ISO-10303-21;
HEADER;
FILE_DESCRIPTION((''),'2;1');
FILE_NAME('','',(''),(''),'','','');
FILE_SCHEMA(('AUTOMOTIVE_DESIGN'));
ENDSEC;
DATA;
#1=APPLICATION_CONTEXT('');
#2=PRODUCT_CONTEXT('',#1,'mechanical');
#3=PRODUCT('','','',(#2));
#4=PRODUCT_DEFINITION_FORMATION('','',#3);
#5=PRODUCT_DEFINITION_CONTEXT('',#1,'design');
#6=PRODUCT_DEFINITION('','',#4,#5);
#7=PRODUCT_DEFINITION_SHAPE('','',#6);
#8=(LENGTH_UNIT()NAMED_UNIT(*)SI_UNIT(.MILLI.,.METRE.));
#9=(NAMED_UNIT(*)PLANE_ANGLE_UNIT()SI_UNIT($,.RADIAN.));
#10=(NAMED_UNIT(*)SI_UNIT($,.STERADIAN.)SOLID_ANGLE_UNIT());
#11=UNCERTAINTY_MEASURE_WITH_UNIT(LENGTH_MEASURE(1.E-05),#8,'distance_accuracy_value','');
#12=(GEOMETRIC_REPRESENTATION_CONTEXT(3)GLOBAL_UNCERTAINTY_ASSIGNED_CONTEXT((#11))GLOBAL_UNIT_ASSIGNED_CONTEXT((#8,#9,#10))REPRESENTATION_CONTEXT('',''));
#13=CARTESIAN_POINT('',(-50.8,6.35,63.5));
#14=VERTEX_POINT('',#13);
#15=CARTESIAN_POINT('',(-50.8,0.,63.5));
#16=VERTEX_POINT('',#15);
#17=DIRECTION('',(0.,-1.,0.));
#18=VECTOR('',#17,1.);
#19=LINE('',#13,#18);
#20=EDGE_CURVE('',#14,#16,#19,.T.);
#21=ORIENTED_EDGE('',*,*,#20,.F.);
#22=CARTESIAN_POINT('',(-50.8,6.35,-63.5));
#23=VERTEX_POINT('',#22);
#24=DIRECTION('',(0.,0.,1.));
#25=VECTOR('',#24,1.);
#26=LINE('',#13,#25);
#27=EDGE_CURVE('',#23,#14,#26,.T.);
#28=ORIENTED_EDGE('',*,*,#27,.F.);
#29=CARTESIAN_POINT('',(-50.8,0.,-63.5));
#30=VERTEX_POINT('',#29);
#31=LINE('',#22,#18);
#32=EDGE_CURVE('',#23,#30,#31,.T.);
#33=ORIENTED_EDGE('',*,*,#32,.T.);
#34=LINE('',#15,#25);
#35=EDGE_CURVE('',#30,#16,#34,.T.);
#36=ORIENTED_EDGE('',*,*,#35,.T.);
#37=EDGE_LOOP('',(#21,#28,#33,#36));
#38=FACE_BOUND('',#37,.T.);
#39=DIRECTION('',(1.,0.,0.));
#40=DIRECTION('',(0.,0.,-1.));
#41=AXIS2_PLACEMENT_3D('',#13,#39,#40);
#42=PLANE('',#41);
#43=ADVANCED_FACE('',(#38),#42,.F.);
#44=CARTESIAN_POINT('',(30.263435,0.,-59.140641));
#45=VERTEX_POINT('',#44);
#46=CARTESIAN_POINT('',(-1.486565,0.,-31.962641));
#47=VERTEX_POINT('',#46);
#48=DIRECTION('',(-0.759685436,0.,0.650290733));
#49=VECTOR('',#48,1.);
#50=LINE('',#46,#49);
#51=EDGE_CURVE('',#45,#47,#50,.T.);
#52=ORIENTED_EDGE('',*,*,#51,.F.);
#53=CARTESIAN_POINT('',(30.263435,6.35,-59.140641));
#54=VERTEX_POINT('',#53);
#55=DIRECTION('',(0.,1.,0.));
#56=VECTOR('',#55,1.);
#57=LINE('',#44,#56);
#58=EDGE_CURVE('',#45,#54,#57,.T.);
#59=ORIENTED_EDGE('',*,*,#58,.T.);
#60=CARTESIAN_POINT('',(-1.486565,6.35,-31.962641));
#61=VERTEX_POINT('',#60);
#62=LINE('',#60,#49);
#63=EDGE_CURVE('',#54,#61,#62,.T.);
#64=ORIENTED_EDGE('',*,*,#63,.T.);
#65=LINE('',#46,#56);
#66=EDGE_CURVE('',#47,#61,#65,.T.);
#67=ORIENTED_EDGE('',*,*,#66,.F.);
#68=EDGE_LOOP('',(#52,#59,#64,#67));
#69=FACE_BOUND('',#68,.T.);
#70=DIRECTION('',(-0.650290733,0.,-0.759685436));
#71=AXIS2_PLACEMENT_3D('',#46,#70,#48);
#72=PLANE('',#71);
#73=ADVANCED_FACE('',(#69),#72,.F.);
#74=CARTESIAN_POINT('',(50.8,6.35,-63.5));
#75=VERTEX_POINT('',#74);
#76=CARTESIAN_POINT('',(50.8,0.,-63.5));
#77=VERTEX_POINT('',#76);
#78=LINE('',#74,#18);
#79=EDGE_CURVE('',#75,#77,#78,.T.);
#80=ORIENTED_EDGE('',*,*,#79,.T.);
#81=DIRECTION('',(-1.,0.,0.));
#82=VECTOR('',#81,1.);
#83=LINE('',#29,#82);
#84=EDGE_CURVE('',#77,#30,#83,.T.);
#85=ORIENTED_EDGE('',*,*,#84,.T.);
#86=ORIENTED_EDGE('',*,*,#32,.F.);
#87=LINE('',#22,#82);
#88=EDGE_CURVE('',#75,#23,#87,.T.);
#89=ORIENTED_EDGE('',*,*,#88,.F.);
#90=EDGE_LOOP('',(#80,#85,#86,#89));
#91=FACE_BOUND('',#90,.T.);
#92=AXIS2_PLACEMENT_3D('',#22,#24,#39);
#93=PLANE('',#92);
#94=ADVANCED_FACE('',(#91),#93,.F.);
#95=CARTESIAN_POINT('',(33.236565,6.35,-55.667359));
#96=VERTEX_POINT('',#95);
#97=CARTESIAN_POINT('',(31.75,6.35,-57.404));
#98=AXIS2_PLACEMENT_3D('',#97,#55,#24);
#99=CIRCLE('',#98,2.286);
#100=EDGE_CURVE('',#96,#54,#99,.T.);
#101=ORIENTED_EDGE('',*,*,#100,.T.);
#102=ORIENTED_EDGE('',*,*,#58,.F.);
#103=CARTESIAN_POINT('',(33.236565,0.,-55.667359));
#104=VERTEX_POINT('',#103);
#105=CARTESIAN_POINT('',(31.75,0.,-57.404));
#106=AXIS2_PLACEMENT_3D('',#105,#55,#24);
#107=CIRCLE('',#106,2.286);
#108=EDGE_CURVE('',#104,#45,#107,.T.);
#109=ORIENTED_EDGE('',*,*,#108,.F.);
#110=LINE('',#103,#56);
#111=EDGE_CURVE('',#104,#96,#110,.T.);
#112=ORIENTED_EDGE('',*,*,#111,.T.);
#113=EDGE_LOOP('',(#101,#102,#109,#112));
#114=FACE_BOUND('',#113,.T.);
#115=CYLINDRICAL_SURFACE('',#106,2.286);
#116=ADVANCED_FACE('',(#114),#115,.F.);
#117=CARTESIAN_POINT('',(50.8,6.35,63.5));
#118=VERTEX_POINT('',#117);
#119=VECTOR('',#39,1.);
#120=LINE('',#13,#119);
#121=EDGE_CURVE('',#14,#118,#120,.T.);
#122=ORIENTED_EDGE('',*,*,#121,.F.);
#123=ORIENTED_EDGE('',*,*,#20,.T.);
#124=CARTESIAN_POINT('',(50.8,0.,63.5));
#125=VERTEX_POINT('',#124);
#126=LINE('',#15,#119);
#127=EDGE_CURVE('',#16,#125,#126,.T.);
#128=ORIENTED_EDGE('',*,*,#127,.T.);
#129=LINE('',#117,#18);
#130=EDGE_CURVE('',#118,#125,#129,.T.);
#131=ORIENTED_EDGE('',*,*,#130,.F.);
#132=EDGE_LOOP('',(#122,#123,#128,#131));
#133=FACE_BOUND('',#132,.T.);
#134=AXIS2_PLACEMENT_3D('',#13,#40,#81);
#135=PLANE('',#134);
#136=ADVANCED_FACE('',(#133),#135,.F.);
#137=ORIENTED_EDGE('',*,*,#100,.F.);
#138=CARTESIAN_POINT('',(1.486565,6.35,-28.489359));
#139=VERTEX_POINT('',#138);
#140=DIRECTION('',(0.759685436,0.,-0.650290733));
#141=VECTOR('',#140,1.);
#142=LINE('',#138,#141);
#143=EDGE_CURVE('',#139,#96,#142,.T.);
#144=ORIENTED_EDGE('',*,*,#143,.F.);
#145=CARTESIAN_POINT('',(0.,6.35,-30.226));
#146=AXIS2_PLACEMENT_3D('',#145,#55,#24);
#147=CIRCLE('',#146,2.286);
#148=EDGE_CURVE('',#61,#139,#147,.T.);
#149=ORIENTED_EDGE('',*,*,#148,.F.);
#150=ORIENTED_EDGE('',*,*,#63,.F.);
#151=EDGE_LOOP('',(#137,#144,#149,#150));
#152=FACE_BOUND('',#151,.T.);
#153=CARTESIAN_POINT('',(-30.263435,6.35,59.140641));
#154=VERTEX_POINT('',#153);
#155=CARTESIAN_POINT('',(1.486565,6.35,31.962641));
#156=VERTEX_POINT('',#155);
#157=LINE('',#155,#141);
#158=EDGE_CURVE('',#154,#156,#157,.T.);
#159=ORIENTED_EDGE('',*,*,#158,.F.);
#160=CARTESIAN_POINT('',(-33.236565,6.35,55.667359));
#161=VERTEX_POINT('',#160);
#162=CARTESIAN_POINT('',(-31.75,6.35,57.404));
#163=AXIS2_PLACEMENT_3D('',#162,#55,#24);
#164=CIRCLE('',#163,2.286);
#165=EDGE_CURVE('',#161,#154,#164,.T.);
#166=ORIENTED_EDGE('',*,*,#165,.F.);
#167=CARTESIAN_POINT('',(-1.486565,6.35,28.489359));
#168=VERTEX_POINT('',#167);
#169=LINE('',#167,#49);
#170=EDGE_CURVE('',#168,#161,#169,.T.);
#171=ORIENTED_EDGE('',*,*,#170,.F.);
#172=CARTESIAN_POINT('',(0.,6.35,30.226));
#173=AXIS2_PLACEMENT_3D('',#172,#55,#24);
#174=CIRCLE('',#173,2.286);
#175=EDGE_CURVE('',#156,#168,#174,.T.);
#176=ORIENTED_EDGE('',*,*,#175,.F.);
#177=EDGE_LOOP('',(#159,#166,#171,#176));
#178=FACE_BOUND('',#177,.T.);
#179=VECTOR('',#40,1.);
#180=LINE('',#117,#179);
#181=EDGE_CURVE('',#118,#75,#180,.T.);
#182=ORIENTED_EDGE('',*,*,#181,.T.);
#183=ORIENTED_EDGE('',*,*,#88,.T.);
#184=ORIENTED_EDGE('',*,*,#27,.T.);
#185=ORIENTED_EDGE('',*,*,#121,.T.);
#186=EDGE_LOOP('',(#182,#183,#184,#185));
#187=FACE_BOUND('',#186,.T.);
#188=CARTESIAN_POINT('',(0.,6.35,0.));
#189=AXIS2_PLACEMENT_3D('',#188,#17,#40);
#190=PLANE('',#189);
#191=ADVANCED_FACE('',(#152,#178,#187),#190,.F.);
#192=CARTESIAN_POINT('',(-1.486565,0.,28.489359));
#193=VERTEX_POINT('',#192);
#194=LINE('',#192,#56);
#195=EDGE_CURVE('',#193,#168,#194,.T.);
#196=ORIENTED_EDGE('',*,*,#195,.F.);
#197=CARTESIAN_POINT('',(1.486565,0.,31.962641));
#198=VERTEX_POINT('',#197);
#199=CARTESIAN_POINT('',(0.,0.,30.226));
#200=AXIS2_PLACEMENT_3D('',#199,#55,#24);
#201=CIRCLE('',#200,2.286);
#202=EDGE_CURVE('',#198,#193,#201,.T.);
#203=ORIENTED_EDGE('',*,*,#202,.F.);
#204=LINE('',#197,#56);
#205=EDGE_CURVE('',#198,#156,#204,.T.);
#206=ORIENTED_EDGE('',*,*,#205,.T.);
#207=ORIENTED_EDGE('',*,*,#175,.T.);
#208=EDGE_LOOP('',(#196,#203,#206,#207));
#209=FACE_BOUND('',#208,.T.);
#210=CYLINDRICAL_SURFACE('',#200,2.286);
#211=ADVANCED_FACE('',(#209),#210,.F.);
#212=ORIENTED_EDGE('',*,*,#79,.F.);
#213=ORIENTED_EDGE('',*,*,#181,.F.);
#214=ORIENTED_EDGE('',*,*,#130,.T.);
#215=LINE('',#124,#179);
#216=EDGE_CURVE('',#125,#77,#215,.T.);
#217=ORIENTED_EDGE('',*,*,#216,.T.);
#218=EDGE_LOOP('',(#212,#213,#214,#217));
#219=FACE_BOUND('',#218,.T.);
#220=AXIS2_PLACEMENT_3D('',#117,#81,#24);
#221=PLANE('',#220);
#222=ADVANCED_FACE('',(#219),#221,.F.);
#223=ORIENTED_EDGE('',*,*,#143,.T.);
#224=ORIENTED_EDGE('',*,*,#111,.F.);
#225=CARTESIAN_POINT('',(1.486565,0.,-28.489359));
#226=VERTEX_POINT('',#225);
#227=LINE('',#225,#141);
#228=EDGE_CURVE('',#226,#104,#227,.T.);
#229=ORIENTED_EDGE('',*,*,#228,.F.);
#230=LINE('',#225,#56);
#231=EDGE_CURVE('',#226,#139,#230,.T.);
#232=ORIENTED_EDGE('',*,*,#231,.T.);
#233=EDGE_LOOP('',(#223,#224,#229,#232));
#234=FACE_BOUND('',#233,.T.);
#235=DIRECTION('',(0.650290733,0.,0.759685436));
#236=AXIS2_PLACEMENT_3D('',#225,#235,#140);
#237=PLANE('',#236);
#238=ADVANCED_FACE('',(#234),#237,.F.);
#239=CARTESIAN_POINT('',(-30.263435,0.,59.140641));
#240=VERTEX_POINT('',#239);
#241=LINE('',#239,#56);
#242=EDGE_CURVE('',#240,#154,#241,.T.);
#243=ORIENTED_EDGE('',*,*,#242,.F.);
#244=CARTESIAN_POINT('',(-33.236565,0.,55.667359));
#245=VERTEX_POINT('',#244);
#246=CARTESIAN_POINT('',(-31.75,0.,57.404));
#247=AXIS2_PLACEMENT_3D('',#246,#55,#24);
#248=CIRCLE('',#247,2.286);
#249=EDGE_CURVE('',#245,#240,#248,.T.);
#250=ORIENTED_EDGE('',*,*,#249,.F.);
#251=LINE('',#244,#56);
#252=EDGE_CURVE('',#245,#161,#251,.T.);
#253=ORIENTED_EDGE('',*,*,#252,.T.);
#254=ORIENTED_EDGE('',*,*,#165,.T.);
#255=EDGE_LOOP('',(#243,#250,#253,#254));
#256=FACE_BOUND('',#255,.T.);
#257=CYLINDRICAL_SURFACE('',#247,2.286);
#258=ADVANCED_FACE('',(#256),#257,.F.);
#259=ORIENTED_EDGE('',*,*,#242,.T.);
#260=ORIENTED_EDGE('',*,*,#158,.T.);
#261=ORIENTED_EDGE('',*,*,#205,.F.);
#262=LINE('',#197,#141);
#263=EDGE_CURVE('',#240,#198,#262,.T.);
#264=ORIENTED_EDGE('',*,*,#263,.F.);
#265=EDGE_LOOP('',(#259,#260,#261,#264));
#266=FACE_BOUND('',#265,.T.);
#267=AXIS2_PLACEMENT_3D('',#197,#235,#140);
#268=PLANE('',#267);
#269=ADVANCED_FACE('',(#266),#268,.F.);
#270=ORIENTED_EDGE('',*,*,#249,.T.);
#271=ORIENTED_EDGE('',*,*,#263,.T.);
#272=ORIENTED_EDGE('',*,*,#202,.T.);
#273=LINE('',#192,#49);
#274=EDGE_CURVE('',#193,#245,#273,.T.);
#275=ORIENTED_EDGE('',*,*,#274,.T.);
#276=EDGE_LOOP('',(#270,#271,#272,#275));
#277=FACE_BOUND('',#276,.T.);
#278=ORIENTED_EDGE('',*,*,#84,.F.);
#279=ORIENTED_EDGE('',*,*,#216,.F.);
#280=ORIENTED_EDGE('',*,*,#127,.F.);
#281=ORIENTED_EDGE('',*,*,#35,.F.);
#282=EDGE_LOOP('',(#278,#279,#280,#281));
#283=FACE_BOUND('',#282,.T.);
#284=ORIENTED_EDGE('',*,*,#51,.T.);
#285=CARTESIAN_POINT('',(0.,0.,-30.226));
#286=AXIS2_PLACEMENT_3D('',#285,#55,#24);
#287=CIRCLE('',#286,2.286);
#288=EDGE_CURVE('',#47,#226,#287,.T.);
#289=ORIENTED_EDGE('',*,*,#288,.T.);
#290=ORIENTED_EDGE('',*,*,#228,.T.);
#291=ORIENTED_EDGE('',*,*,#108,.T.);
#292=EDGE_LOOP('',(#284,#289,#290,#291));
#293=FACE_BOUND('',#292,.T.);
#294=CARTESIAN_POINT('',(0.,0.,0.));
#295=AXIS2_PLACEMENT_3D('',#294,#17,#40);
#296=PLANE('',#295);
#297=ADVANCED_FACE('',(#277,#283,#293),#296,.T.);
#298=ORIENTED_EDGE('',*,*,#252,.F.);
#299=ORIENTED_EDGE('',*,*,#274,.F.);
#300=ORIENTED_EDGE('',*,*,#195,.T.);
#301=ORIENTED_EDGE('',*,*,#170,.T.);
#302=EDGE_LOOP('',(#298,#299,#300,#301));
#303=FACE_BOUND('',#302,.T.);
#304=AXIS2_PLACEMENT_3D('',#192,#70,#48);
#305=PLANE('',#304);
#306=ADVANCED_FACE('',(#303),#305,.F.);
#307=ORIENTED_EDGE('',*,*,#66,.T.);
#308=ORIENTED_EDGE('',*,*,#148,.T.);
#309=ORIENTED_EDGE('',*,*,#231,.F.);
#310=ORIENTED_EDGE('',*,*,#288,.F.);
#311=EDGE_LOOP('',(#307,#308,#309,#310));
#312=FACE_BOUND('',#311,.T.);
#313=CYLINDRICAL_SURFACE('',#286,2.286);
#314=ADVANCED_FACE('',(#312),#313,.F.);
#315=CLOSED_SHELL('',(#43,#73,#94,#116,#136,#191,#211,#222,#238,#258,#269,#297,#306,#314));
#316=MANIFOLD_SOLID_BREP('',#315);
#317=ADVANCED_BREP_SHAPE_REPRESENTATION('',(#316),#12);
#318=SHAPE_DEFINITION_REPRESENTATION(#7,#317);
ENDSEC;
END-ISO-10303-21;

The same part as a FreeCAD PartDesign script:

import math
import FreeCAD as App
import Part
import Sketcher
Q = App.Units.Quantity


def add_polygon(sketch, points):
    """Adds a closed chain of lines whose ends are joined by coincident constraints."""
    first, n = sketch.GeometryCount, len(points)
    for a, b in zip(points, points[1:] + points[:1]):
        sketch.addGeometry(Part.LineSegment(App.Vector(*a, 0), App.Vector(*b, 0)), False)
    for i in range(n):
        sketch.addConstraint(Sketcher.Constraint("Coincident", first + i, 2, first + (i + 1) % n, 1))

doc = App.newDocument("Part")
body = doc.addObject("PartDesign::Body", "Body")

# Sketch on XZ plane
sketch1 = body.newObject("Sketcher::SketchObject", "Sketch")
sketch1.AttachmentSupport = (doc.getObject("XZ_Plane"), [""])
sketch1.MapMode = "FlatFace"
add_polygon(sketch1, [(-51, -64), (-51, 64), (51, 64), (51, -64)])  # lines 0-3
sketch1.addConstraint([
    Sketcher.Constraint("Vertical", 0),
    Sketcher.Constraint("Horizontal", 1),
    Sketcher.Constraint("Vertical", 2),
    Sketcher.Constraint("Horizontal", 3),
    Sketcher.Constraint("Symmetric", 0, 2, 2, 2, -1, 1),
    Sketcher.Constraint("DistanceX", 1, 1, 1, 2, Q("4 in")),
    Sketcher.Constraint("DistanceY", 0, 1, 0, 2, Q("5 in")),
])
pad1 = body.newObject("PartDesign::Pad", "Pad")
pad1.Profile = sketch1
pad1.Length = Q("0.25 in")
pad1.Reversed = True

# Sketch on XZ plane
sketch2 = body.newObject("Sketcher::SketchObject", "Sketch001")
sketch2.AttachmentSupport = (doc.getObject("XZ_Plane"), [""])
sketch2.MapMode = "FlatFace"
sketch2.AttachmentOffset = App.Placement(App.Vector(0, 0, -0.25 * 25.4), App.Rotation())
sketch2.addGeometry([
    Part.LineSegment(App.Vector(30.3, -59.1, 0), App.Vector(-1.5, -32, 0)),  # 0
    Part.ArcOfCircle(Part.Circle(App.Vector(0, -30.2, 0), App.Vector(0, 0, 1), 2.3), math.radians(49), math.radians(229)),  # 1
    Part.LineSegment(App.Vector(1.5, -28.5, 0), App.Vector(33.2, -55.7, 0)),  # 2
    Part.ArcOfCircle(Part.Circle(App.Vector(31.8, -57.4, 0), App.Vector(0, 0, 1), 2.3), math.radians(-131), math.radians(49)),  # 3
    Part.LineSegment(App.Vector(-30.3, 59.1, 0), App.Vector(1.5, 32, 0)),  # 4
    Part.ArcOfCircle(Part.Circle(App.Vector(0, 30.2, 0), App.Vector(0, 0, 1), 2.3), math.radians(-131), math.radians(49)),  # 5
    Part.LineSegment(App.Vector(-1.5, 28.5, 0), App.Vector(-33.2, 55.7, 0)),  # 6
    Part.ArcOfCircle(Part.Circle(App.Vector(-31.8, 57.4, 0), App.Vector(0, 0, 1), 2.3), math.radians(49), math.radians(229)),  # 7
], False)
sketch2.addConstraint([
    Sketcher.Constraint("Tangent", 0, 2, 1, 2),
    Sketcher.Constraint("Tangent", 1, 1, 2, 1),
    Sketcher.Constraint("Tangent", 2, 2, 3, 2),
    Sketcher.Constraint("Tangent", 3, 1, 0, 1),
    Sketcher.Constraint("Tangent", 4, 2, 5, 2),
    Sketcher.Constraint("Tangent", 5, 1, 6, 1),
    Sketcher.Constraint("Tangent", 6, 2, 7, 2),
    Sketcher.Constraint("Tangent", 7, 1, 4, 1),
    Sketcher.Constraint("Equal", 1, 3),
    Sketcher.Constraint("Equal", 3, 5),
    Sketcher.Constraint("Equal", 5, 7),
    Sketcher.Constraint("Symmetric", 1, 3, 5, 3, -1, 1),
    Sketcher.Constraint("Symmetric", 3, 3, 7, 3, -1, 1),
    Sketcher.Constraint("PointOnObject", 1, 3, -2),
    Sketcher.Constraint("Radius", 1, Q("0.09 in")),
    Sketcher.Constraint("DistanceX", 7, 3, 3, 3, Q("2.5 in")),
    Sketcher.Constraint("DistanceY", 1, 3, -1, 1, Q("1.19 in")),
    Sketcher.Constraint("DistanceY", 3, 3, -1, 1, Q("2.26 in")),
])
pocket1 = body.newObject("PartDesign::Pocket", "Pocket")
pocket1.Profile = sketch2
pocket1.Type = "ThroughAll"
pocket1.Reversed = True

doc.recompute()
